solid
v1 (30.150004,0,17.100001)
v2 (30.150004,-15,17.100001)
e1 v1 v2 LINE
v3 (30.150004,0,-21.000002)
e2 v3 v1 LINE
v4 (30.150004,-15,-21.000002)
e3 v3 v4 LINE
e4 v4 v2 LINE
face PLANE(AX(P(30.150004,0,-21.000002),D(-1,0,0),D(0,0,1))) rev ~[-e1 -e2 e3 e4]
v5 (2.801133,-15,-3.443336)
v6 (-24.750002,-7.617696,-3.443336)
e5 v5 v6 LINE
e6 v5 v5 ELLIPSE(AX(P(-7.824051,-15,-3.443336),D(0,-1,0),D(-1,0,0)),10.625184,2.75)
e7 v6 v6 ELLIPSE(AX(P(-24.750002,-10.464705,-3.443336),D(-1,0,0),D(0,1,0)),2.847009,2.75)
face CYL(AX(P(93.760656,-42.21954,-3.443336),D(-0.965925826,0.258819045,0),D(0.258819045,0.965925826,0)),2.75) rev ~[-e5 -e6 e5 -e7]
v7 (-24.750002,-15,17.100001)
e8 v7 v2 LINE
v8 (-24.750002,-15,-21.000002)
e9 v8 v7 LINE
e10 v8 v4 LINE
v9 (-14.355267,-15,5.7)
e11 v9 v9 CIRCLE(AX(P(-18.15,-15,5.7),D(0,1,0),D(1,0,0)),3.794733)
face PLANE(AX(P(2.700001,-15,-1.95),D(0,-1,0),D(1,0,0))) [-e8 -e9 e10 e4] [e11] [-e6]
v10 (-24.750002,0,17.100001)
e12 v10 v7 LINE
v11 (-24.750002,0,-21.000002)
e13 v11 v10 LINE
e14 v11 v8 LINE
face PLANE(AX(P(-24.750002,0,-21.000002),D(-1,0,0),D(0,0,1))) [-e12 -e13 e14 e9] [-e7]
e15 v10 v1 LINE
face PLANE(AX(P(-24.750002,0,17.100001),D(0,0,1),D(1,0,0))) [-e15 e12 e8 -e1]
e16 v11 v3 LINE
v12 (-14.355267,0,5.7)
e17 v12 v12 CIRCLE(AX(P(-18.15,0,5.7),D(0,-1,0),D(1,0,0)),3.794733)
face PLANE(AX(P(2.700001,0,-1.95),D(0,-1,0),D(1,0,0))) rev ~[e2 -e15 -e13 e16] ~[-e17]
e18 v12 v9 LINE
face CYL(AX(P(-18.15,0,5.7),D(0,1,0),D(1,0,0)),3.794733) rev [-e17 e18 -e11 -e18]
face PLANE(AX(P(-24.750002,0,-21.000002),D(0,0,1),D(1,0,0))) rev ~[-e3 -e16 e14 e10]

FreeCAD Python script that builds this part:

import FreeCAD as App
import Part
import Sketcher
from FreeCAD import Vector
Q = App.Units.Quantity

doc = App.newDocument("Part")
body = doc.addObject("PartDesign::Body", "Body")

# Sketch on XZ plane
sketch1 = body.newObject("Sketcher::SketchObject", "Sketch")
sketch1.AttachmentSupport = (doc.getObject("XZ_Plane"), [""])
sketch1.MapMode = "FlatFace"
sketch1.addGeometry([
    Part.LineSegment(Vector(-24.750002, 17.100001, 0), Vector(-24.750002, -21.000002, 0)),
    Part.LineSegment(Vector(-24.750002, -21.000002, 0), Vector(30.150004, -21.000002, 0)),
    Part.LineSegment(Vector(30.150004, -21.000002, 0), Vector(30.150004, 17.100001, 0)),
    Part.LineSegment(Vector(30.150004, 17.100001, 0), Vector(-24.750002, 17.100001, 0)),
], False)
sketch1.addConstraint([
    Sketcher.Constraint("Coincident", 0, 2, 1, 1),
    Sketcher.Constraint("Coincident", 1, 2, 2, 1),
    Sketcher.Constraint("Coincident", 2, 2, 3, 1),
    Sketcher.Constraint("Coincident", 3, 2, 0, 1),
    Sketcher.Constraint("Vertical", 0),
    Sketcher.Constraint("Horizontal", 1),
    Sketcher.Constraint("Vertical", 2),
    Sketcher.Constraint("Horizontal", 3),
    Sketcher.Constraint("DistanceY", 0, 2, -1, 1, Q("21.000002 mm")),
    Sketcher.Constraint("DistanceY", -1, 1, 2, 2, Q("17.100001 mm")),
    Sketcher.Constraint("DistanceX", 0, 2, -1, 1, Q("24.750002 mm")),
    Sketcher.Constraint("DistanceX", 1, 1, 1, 2, Q("54.900005 mm")),
])
pad1 = body.newObject("PartDesign::Pad", "Pad")
pad1.Profile = sketch1
pad1.Length = 15

# Sketch on an angled plane
sketch2 = body.newObject("Sketcher::SketchObject", "Sketch001")
sketch2.Placement = App.Placement(Vector(31.880336, -8.54231, 0), App.Rotation(Vector(-0.258819045, -0.965925826, 0), Vector(0, 0, -0.999999999), Vector(0.965925826, -0.258819045, 0), "ZXY"))
sketch2.addGeometry(Part.Circle(Vector(16.513901, 3.443336, 0), Vector(0, 0, 1), 2.75), False)
sketch2.addConstraint([
    Sketcher.Constraint("Diameter", 0, Q("5.5 mm")),
    Sketcher.Constraint("DistanceX", -1, 1, 0, 3, Q("16.513901 mm")),
    Sketcher.Constraint("DistanceY", -1, 1, 0, 3, Q("3.443336 mm")),
])
doc.recompute()
hole = body.newObject("PartDesign::Hole", "Hole")
hole.Profile = sketch2
hole.ThreadType = "None"
hole.Diameter = 5.5
hole.DepthType = "ThroughAll"

# Sketch on XZ plane
sketch3 = body.newObject("Sketcher::SketchObject", "Sketch002")
sketch3.AttachmentSupport = (doc.getObject("XZ_Plane"), [""])
sketch3.MapMode = "FlatFace"
sketch3.addGeometry(Part.Circle(Vector(-18.15, 5.7, 0), Vector(0, 0, 1), 3.794733), False)
sketch3.addConstraint([
    Sketcher.Constraint("DistanceY", -1, 1, 0, 3, Q("5.7 mm")),
    Sketcher.Constraint("DistanceX", 0, 3, -1, 1, Q("18.15 mm")),
    Sketcher.Constraint("Diameter", 0, Q("7.589465 mm")),
])
pocket1 = body.newObject("PartDesign::Pocket", "Pocket")
pocket1.Profile = sketch3
pocket1.Length = 25
pocket1.Reversed = True

doc.recompute()
